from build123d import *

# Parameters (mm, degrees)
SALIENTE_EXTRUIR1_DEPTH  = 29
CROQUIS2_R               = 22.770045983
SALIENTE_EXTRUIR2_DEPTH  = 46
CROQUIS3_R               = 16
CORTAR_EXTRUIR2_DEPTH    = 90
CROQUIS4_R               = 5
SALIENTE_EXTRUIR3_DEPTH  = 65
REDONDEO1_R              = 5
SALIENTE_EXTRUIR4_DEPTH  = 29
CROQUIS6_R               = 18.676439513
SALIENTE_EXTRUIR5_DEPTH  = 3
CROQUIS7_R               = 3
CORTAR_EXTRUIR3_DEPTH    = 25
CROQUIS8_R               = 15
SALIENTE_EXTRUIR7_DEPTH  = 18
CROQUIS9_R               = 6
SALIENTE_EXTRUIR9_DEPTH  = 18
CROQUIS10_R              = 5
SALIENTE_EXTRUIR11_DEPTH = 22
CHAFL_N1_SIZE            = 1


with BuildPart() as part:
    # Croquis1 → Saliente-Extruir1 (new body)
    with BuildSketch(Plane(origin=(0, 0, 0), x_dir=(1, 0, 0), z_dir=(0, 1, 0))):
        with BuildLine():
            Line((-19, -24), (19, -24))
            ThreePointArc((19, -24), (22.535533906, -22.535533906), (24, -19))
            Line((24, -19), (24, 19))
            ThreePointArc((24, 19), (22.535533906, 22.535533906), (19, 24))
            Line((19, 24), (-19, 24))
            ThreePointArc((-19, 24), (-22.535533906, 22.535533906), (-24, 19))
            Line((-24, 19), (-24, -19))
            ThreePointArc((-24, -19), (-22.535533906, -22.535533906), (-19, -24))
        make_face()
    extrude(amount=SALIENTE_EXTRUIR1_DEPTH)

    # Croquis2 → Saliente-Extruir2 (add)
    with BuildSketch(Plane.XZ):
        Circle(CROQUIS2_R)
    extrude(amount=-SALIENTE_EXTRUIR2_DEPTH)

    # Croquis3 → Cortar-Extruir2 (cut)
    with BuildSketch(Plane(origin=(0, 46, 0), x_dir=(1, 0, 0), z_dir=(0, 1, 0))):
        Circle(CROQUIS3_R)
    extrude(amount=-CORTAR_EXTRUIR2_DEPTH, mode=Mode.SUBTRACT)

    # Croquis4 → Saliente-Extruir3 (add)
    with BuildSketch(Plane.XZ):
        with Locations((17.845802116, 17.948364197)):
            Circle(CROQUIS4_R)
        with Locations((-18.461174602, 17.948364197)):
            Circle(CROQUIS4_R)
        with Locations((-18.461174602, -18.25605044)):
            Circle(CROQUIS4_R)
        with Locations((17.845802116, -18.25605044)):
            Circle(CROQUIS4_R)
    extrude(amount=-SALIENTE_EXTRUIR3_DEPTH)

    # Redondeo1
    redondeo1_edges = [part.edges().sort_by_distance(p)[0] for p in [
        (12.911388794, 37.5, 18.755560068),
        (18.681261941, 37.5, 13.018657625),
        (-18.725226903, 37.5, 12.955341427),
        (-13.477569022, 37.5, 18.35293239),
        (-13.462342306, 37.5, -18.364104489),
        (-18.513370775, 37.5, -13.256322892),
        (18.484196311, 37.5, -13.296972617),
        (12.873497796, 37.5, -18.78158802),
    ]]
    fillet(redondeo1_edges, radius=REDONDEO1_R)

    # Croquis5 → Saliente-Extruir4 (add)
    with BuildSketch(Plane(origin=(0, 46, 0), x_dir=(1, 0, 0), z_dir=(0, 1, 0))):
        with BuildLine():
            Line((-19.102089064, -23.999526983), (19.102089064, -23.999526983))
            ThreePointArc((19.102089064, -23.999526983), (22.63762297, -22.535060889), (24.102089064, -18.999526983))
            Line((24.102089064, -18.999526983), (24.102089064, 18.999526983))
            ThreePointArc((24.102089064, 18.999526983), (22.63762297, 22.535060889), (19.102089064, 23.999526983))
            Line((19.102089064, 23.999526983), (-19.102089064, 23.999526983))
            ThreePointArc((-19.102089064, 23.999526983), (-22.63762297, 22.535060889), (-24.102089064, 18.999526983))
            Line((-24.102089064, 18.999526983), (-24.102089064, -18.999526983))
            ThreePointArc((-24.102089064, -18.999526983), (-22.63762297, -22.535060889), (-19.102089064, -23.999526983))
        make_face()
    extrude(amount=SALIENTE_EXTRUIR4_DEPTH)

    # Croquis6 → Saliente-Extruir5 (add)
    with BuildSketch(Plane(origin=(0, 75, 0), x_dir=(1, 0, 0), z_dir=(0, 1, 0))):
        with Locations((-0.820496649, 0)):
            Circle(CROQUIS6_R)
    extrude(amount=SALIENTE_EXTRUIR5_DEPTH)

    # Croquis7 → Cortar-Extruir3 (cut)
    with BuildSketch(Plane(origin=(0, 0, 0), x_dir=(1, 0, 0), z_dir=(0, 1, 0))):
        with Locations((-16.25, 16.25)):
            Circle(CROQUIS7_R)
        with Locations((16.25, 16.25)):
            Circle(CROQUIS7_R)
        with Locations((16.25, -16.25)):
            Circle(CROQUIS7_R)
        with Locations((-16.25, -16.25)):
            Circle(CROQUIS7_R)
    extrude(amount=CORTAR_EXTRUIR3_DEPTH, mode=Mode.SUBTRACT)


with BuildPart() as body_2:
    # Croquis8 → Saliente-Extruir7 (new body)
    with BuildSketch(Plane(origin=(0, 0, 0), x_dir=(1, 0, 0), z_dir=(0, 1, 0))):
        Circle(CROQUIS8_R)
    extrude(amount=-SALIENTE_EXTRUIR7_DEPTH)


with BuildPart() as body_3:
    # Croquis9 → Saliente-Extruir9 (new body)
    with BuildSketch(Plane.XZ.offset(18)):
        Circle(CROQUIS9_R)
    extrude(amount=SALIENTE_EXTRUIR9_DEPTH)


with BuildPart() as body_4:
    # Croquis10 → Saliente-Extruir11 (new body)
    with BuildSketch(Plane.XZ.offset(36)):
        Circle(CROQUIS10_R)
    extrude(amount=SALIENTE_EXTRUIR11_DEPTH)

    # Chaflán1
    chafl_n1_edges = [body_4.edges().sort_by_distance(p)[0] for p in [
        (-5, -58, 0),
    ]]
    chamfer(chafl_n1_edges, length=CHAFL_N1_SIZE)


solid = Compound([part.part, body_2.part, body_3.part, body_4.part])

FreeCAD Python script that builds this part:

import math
import FreeCAD as App
import Part
import Sketcher
Q = App.Units.Quantity


def edges_at(feature, points):
    """Names of the edges that pass closest to the given points."""
    edges = feature.Shape.Edges
    near = lambda p: min(range(len(edges)), key=lambda i: edges[i].distToShape(Part.Vertex(*p))[0])
    return sorted({f"Edge{near(p) + 1}" for p in points})

doc = App.newDocument("Part")
params = doc.addObject("Spreadsheet::Sheet", "Params")
for row, (alias, value) in enumerate([
    ("sketch1_radius", "5 mm"),
    ("sketch1_width", "38 mm"),
    ("pad1_length", "29 mm"),
    ("pad2_length", "46 mm"),
    ("sketch3_diameter", "32 mm"),
    ("pocket1_length", "90 mm"),
    ("sketch4_diameter", "10 mm"),
    ("pad3_length", "65 mm"),
    ("fillet_radius", "5 mm"),
    ("sketch5_radius", "5 mm"),
    ("pad4_length", "29 mm"),
    ("pad5_length", "3 mm"),
    ("sketch7_diameter", "6 mm"),
    ("pocket2_length", "25 mm"),
    ("sketch8_diameter", "30 mm"),
    ("pad6_length", "18 mm"),
    ("sketch9_diameter", "12 mm"),
    ("pad7_length", "18 mm"),
    ("sketch10_diameter", "10 mm"),
    ("pad8_length", "22 mm"),
    ("chamfer_size", "1 mm"),
], start=1):
    params.set(f"A{row}", alias)
    params.set(f"B{row}", "=" + value)
    params.setAlias(f"B{row}", alias)

body = doc.addObject("PartDesign::Body", "Body")

# Sketch on XZ plane
sketch1 = body.newObject("Sketcher::SketchObject", "Sketch")
sketch1.AttachmentSupport = (doc.getObject("XZ_Plane"), [""])
sketch1.MapMode = "FlatFace"
sketch1.addGeometry([
    Part.LineSegment(App.Vector(-19, 24, 0), App.Vector(19, 24, 0)),  # 0
    Part.ArcOfCircle(Part.Circle(App.Vector(19, 19, 0), App.Vector(0, 0, 1), 5), math.radians(0), math.radians(90)),  # 1
    Part.LineSegment(App.Vector(24, 19, 0), App.Vector(24, -19, 0)),  # 2
    Part.ArcOfCircle(Part.Circle(App.Vector(19, -19, 0), App.Vector(0, 0, 1), 5), math.radians(-90), math.radians(0)),  # 3
    Part.LineSegment(App.Vector(19, -24, 0), App.Vector(-19, -24, 0)),  # 4
    Part.ArcOfCircle(Part.Circle(App.Vector(-19, -19, 0), App.Vector(0, 0, 1), 5), math.radians(180), math.radians(270)),  # 5
    Part.LineSegment(App.Vector(-24, -19, 0), App.Vector(-24, 19, 0)),  # 6
    Part.ArcOfCircle(Part.Circle(App.Vector(-19, 19, 0), App.Vector(0, 0, 1), 5), math.radians(90), math.radians(180)),  # 7
], False)
sketch1.addConstraint([
    Sketcher.Constraint("Tangent", 0, 2, 1, 2),
    Sketcher.Constraint("Tangent", 1, 1, 2, 1),
    Sketcher.Constraint("Tangent", 2, 2, 3, 2),
    Sketcher.Constraint("Tangent", 3, 1, 4, 1),
    Sketcher.Constraint("Tangent", 4, 2, 5, 2),
    Sketcher.Constraint("Tangent", 5, 1, 6, 1),
    Sketcher.Constraint("Tangent", 6, 2, 7, 2),
    Sketcher.Constraint("Tangent", 7, 1, 0, 1),
    Sketcher.Constraint("Horizontal", 0),
    Sketcher.Constraint("Vertical", 2),
    Sketcher.Constraint("Horizontal", 4),
    Sketcher.Constraint("Vertical", 6),
    Sketcher.Constraint("Equal", 1, 3),
    Sketcher.Constraint("Equal", 3, 5),
    Sketcher.Constraint("Equal", 5, 7),
    Sketcher.Constraint("Symmetric", 1, 3, 5, 3, -1, 1),
    Sketcher.Constraint("Equal", 4, 2),
    Sketcher.Constraint("Radius", 1, Q("5 mm")),
    Sketcher.Constraint("DistanceX", 0, 1, 0, 2, Q("38 mm")),
])
sketch1.setExpression("Constraints[17]", "Params.sketch1_radius")
sketch1.setExpression("Constraints[18]", "Params.sketch1_width")
pad1 = body.newObject("PartDesign::Pad", "Pad")
pad1.Profile = sketch1
pad1.setExpression("Length", "Params.pad1_length")
pad1.Reversed = True

# Sketch on XZ plane
sketch2 = body.newObject("Sketcher::SketchObject", "Sketch001")
sketch2.AttachmentSupport = (doc.getObject("XZ_Plane"), [""])
sketch2.MapMode = "FlatFace"
sketch2.addGeometry(Part.Circle(App.Vector(0, 0, 0), App.Vector(0, 0, 1), 23), False)
sketch2.addConstraint([
    Sketcher.Constraint("Coincident", 0, 3, -1, 1),
    Sketcher.Constraint("Diameter", 0, Q("45.540092 mm")),
])
pad2 = body.newObject("PartDesign::Pad", "Pad001")
pad2.Profile = sketch2
pad2.setExpression("Length", "Params.pad2_length")
pad2.Reversed = True

# Sketch on XZ plane
sketch3 = body.newObject("Sketcher::SketchObject", "Sketch002")
sketch3.AttachmentSupport = (doc.getObject("XZ_Plane"), [""])
sketch3.MapMode = "FlatFace"
sketch3.AttachmentOffset = App.Placement(App.Vector(0, 0, -46), App.Rotation())
sketch3.addGeometry(Part.Circle(App.Vector(0, 0, 0), App.Vector(0, 0, 1), 16), False)
sketch3.addConstraint([
    Sketcher.Constraint("Coincident", 0, 3, -1, 1),
    Sketcher.Constraint("Diameter", 0, Q("32 mm")),
])
sketch3.setExpression("Constraints[1]", "Params.sketch3_diameter")
pocket1 = body.newObject("PartDesign::Pocket", "Pocket")
pocket1.Profile = sketch3
pocket1.setExpression("Length", "Params.pocket1_length")
pocket1.Reversed = True

# Sketch on XZ plane
sketch4 = body.newObject("Sketcher::SketchObject", "Sketch003")
sketch4.AttachmentSupport = (doc.getObject("XZ_Plane"), [""])
sketch4.MapMode = "FlatFace"
sketch4.addGeometry([
    Part.Circle(App.Vector(18, 18, 0), App.Vector(0, 0, 1), 5),
    Part.Circle(App.Vector(-18, 18, 0), App.Vector(0, 0, 1), 5),
    Part.Circle(App.Vector(-18, -18, 0), App.Vector(0, 0, 1), 5),
    Part.Circle(App.Vector(18, -18, 0), App.Vector(0, 0, 1), 5),
], False)
sketch4.addConstraint([
    Sketcher.Constraint("Equal", 0, 1),
    Sketcher.Constraint("Equal", 1, 2),
    Sketcher.Constraint("Equal", 2, 3),
    Sketcher.Constraint("Horizontal", 0, 3, 1, 3),
    Sketcher.Constraint("Horizontal", 2, 3, 3, 3),
    Sketcher.Constraint("Vertical", 1, 3, 2, 3),
    Sketcher.Constraint("Vertical", 0, 3, 3, 3),
    Sketcher.Constraint("Diameter", 0, Q("10 mm")),
    Sketcher.Constraint("DistanceY", 2, 3, -1, 1, Q("18.25605 mm")),
    Sketcher.Constraint("DistanceX", -1, 1, 0, 3, Q("17.845802 mm")),
    Sketcher.Constraint("DistanceY", -1, 1, 0, 3, Q("17.948364 mm")),
    Sketcher.Constraint("DistanceX", 1, 3, -1, 1, Q("18.461175 mm")),
])
sketch4.setExpression("Constraints[7]", "Params.sketch4_diameter")
pad3 = body.newObject("PartDesign::Pad", "Pad002")
pad3.Profile = sketch4
pad3.setExpression("Length", "Params.pad3_length")
pad3.Reversed = True
doc.recompute()

fillet = body.newObject("PartDesign::Fillet", "Fillet")
fillet.Base = (pad3, edges_at(pad3, [
    (12.911, 37.5, 18.756),
    (18.681, 37.5, 13.019),
    (-18.725, 37.5, 12.955),
    (-13.478, 37.5, 18.353),
    (-13.462, 37.5, -18.364),
    (-18.513, 37.5, -13.256),
    (18.484, 37.5, -13.297),
    (12.873, 37.5, -18.782),
]))
fillet.setExpression("Radius", "Params.fillet_radius")

# Sketch on XZ plane
sketch5 = body.newObject("Sketcher::SketchObject", "Sketch004")
sketch5.AttachmentSupport = (doc.getObject("XZ_Plane"), [""])
sketch5.MapMode = "FlatFace"
sketch5.AttachmentOffset = App.Placement(App.Vector(0, 0, -46), App.Rotation())
sketch5.addGeometry([
    Part.LineSegment(App.Vector(-19, 24, 0), App.Vector(19, 24, 0)),  # 0
    Part.ArcOfCircle(Part.Circle(App.Vector(19, 19, 0), App.Vector(0, 0, 1), 5), math.radians(0), math.radians(90)),  # 1
    Part.LineSegment(App.Vector(24, 19, 0), App.Vector(24, -19, 0)),  # 2
    Part.ArcOfCircle(Part.Circle(App.Vector(19, -19, 0), App.Vector(0, 0, 1), 5), math.radians(-90), math.radians(0)),  # 3
    Part.LineSegment(App.Vector(19, -24, 0), App.Vector(-19, -24, 0)),  # 4
    Part.ArcOfCircle(Part.Circle(App.Vector(-19, -19, 0), App.Vector(0, 0, 1), 5), math.radians(180), math.radians(270)),  # 5
    Part.LineSegment(App.Vector(-24, -19, 0), App.Vector(-24, 19, 0)),  # 6
    Part.ArcOfCircle(Part.Circle(App.Vector(-19, 19, 0), App.Vector(0, 0, 1), 5), math.radians(90), math.radians(180)),  # 7
], False)
sketch5.addConstraint([
    Sketcher.Constraint("Tangent", 0, 2, 1, 2),
    Sketcher.Constraint("Tangent", 1, 1, 2, 1),
    Sketcher.Constraint("Tangent", 2, 2, 3, 2),
    Sketcher.Constraint("Tangent", 3, 1, 4, 1),
    Sketcher.Constraint("Tangent", 4, 2, 5, 2),
    Sketcher.Constraint("Tangent", 5, 1, 6, 1),
    Sketcher.Constraint("Tangent", 6, 2, 7, 2),
    Sketcher.Constraint("Tangent", 7, 1, 0, 1),
    Sketcher.Constraint("Horizontal", 0),
    Sketcher.Constraint("Vertical", 2),
    Sketcher.Constraint("Horizontal", 4),
    Sketcher.Constraint("Vertical", 6),
    Sketcher.Constraint("Equal", 1, 3),
    Sketcher.Constraint("Equal", 3, 5),
    Sketcher.Constraint("Equal", 5, 7),
    Sketcher.Constraint("Symmetric", 1, 3, 5, 3, -1, 1),
    Sketcher.Constraint("Radius", 1, Q("5 mm")),
    Sketcher.Constraint("DistanceX", 0, 1, 0, 2, Q("38.204178 mm")),
    Sketcher.Constraint("DistanceY", 2, 2, 2, 1, Q("37.999054 mm")),
])
sketch5.setExpression("Constraints[16]", "Params.sketch5_radius")
pad4 = body.newObject("PartDesign::Pad", "Pad003")
pad4.Profile = sketch5
pad4.setExpression("Length", "Params.pad4_length")
pad4.Reversed = True

# Sketch on XZ plane
sketch6 = body.newObject("Sketcher::SketchObject", "Sketch005")
sketch6.AttachmentSupport = (doc.getObject("XZ_Plane"), [""])
sketch6.MapMode = "FlatFace"
sketch6.AttachmentOffset = App.Placement(App.Vector(0, 0, -75), App.Rotation())
sketch6.addGeometry(Part.Circle(App.Vector(-1, 0, 0), App.Vector(0, 0, 1), 19), False)
sketch6.addConstraint([
    Sketcher.Constraint("PointOnObject", 0, 3, -1),
    Sketcher.Constraint("Diameter", 0, Q("37.352879 mm")),
    Sketcher.Constraint("DistanceX", 0, 3, -1, 1, Q("0.820497 mm")),
])
pad5 = body.newObject("PartDesign::Pad", "Pad004")
pad5.Profile = sketch6
pad5.setExpression("Length", "Params.pad5_length")
pad5.Reversed = True

# Sketch on XZ plane
sketch7 = body.newObject("Sketcher::SketchObject", "Sketch006")
sketch7.AttachmentSupport = (doc.getObject("XZ_Plane"), [""])
sketch7.MapMode = "FlatFace"
sketch7.addGeometry([
    Part.Circle(App.Vector(-16.2, -16.2, 0), App.Vector(0, 0, 1), 3),
    Part.Circle(App.Vector(16.2, -16.2, 0), App.Vector(0, 0, 1), 3),
    Part.Circle(App.Vector(16.2, 16.2, 0), App.Vector(0, 0, 1), 3),
    Part.Circle(App.Vector(-16.2, 16.2, 0), App.Vector(0, 0, 1), 3),
], False)
sketch7.addConstraint([
    Sketcher.Constraint("Equal", 0, 1),
    Sketcher.Constraint("Equal", 1, 2),
    Sketcher.Constraint("Equal", 2, 3),
    Sketcher.Constraint("Symmetric", 0, 3, 2, 3, -1, 1),
    Sketcher.Constraint("Symmetric", 1, 3, 3, 3, -1, 1),
    Sketcher.Constraint("Symmetric", 0, 3, 1, 3, -2),
    Sketcher.Constraint("Diameter", 0, Q("6 mm")),
    Sketcher.Constraint("DistanceX", 0, 3, 1, 3, Q("32.5 mm")),
    Sketcher.Constraint("DistanceY", 1, 3, 2, 3, Q("32.5 mm")),
])
sketch7.setExpression("Constraints[6]", "Params.sketch7_diameter")
pocket2 = body.newObject("PartDesign::Pocket", "Pocket001")
pocket2.Profile = sketch7
pocket2.setExpression("Length", "Params.pocket2_length")
body2 = doc.addObject("PartDesign::Body", "Body001")

# Sketch on XZ plane
sketch8 = body2.newObject("Sketcher::SketchObject", "Sketch007")
sketch8.AttachmentSupport = (doc.getObject("XZ_Plane001"), [""])
sketch8.MapMode = "FlatFace"
sketch8.addGeometry(Part.Circle(App.Vector(0, 0, 0), App.Vector(0, 0, 1), 15), False)
sketch8.addConstraint([
    Sketcher.Constraint("Coincident", 0, 3, -1, 1),
    Sketcher.Constraint("Diameter", 0, Q("30 mm")),
])
sketch8.setExpression("Constraints[1]", "Params.sketch8_diameter")
pad6 = body2.newObject("PartDesign::Pad", "Pad005")
pad6.Profile = sketch8
pad6.setExpression("Length", "Params.pad6_length")
body3 = doc.addObject("PartDesign::Body", "Body002")

# Sketch on XZ plane
sketch9 = body3.newObject("Sketcher::SketchObject", "Sketch008")
sketch9.AttachmentSupport = (doc.getObject("XZ_Plane002"), [""])
sketch9.MapMode = "FlatFace"
sketch9.AttachmentOffset = App.Placement(App.Vector(0, 0, 18), App.Rotation())
sketch9.addGeometry(Part.Circle(App.Vector(0, 0, 0), App.Vector(0, 0, 1), 6), False)
sketch9.addConstraint([
    Sketcher.Constraint("Coincident", 0, 3, -1, 1),
    Sketcher.Constraint("Diameter", 0, Q("12 mm")),
])
sketch9.setExpression("Constraints[1]", "Params.sketch9_diameter")
pad7 = body3.newObject("PartDesign::Pad", "Pad006")
pad7.Profile = sketch9
pad7.setExpression("Length", "Params.pad7_length")
body4 = doc.addObject("PartDesign::Body", "Body003")

# Sketch on XZ plane
sketch10 = body4.newObject("Sketcher::SketchObject", "Sketch009")
sketch10.AttachmentSupport = (doc.getObject("XZ_Plane003"), [""])
sketch10.MapMode = "FlatFace"
sketch10.AttachmentOffset = App.Placement(App.Vector(0, 0, 36), App.Rotation())
sketch10.addGeometry(Part.Circle(App.Vector(0, 0, 0), App.Vector(0, 0, 1), 5), False)
sketch10.addConstraint([
    Sketcher.Constraint("Coincident", 0, 3, -1, 1),
    Sketcher.Constraint("Diameter", 0, Q("10 mm")),
])
sketch10.setExpression("Constraints[1]", "Params.sketch10_diameter")
pad8 = body4.newObject("PartDesign::Pad", "Pad007")
pad8.Profile = sketch10
pad8.setExpression("Length", "Params.pad8_length")
doc.recompute()

chamfer = body4.newObject("PartDesign::Chamfer", "Chamfer")
chamfer.Base = (pad8, edges_at(pad8, [(-5, -58, 0)]))
chamfer.setExpression("Size", "Params.chamfer_size")

doc.recompute()
